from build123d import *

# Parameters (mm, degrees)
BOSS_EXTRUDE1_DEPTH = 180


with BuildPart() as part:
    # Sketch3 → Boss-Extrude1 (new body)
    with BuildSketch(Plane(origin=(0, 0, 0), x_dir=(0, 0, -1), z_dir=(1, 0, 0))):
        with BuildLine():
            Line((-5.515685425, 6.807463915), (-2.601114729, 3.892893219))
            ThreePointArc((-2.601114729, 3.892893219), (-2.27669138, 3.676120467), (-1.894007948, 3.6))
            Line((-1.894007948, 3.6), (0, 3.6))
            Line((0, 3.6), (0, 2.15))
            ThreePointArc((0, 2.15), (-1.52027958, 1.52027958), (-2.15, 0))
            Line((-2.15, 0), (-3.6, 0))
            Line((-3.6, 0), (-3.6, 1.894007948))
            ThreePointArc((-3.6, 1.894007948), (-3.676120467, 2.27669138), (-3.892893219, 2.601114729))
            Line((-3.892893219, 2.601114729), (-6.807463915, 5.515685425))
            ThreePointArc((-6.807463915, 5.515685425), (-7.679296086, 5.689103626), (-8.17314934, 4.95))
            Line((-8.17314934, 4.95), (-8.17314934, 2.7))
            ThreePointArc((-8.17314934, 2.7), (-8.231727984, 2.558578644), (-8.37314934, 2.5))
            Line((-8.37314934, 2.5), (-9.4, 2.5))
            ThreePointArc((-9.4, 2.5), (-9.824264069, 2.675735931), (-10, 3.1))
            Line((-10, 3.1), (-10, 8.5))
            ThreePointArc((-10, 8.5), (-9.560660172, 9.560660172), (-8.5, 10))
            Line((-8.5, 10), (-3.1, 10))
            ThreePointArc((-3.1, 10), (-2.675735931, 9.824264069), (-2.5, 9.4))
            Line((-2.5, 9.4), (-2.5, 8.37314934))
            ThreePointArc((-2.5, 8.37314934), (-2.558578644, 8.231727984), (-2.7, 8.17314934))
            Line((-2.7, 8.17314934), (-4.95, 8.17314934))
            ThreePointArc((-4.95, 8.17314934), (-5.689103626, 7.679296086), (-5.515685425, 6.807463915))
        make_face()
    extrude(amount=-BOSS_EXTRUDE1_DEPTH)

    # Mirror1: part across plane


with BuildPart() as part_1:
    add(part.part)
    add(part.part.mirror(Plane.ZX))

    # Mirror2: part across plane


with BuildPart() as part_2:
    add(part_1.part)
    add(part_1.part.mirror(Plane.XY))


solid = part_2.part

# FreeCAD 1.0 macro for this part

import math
import FreeCAD as App
import Part
import Sketcher

V = App.Vector
Q = App.Units.Quantity

doc = App.newDocument("Part")
body = doc.addObject("PartDesign::Body", "Body")

sketch1 = body.newObject("Sketcher::SketchObject", "Sketch")
sketch1.AttachmentSupport = (doc.getObject("YZ_Plane"), [""])
sketch1.MapMode = "FlatFace"
sketch1.addGeometry([
    Part.LineSegment(V(3.89, 2.6, 0), V(6.81, 5.52, 0)),
    Part.ArcOfCircle(Part.Circle(V(7.37, 4.95, 0), V(0, 0, 1), 0.8), math.radians(0), math.radians(135)),
    Part.LineSegment(V(8.17, 4.95, 0), V(8.17, 2.7, 0)),
    Part.ArcOfCircle(Part.Circle(V(8.37, 2.7, 0), V(0, 0, 1), 0.2), math.radians(-180), math.radians(-90)),
    Part.LineSegment(V(8.37, 2.5, 0), V(9.4, 2.5, 0)),
    Part.ArcOfCircle(Part.Circle(V(9.4, 3.1, 0), V(0, 0, 1), 0.6), math.radians(-90), math.radians(0)),
    Part.LineSegment(V(10, 3.1, 0), V(10, 8.5, 0)),
    Part.ArcOfCircle(Part.Circle(V(8.5, 8.5, 0), V(0, 0, 1), 1.5), math.radians(0), math.radians(90)),
    Part.LineSegment(V(8.5, 10, 0), V(3.1, 10, 0)),
    Part.ArcOfCircle(Part.Circle(V(3.1, 9.4, 0), V(0, 0, 1), 0.6), math.radians(90), math.radians(180)),
    Part.LineSegment(V(2.5, 9.4, 0), V(2.5, 8.37, 0)),
    Part.ArcOfCircle(Part.Circle(V(2.7, 8.37, 0), V(0, 0, 1), 0.2), math.radians(-180), math.radians(-90)),
    Part.LineSegment(V(2.7, 8.17, 0), V(4.95, 8.17, 0)),
    Part.ArcOfCircle(Part.Circle(V(4.95, 7.37, 0), V(0, 0, 1), 0.8), math.radians(-45), math.radians(90)),
    Part.LineSegment(V(5.52, 6.81, 0), V(2.6, 3.89, 0)),
    Part.ArcOfCircle(Part.Circle(V(1.89, 4.6, 0), V(0, 0, 1), 1), math.radians(-90), math.radians(-45)),
    Part.LineSegment(V(1.89, 3.6, 0), V(0, 3.6, 0)),
    Part.LineSegment(V(0, 3.6, 0), V(0, 2.15, 0)),
    Part.ArcOfCircle(Part.Circle(V(0, 0, 0), V(0, 0, 1), 2.15), math.radians(0), math.radians(90)),
    Part.LineSegment(V(2.15, 0, 0), V(3.6, 0, 0)),
    Part.LineSegment(V(3.6, 0, 0), V(3.6, 1.89, 0)),
    Part.ArcOfCircle(Part.Circle(V(4.6, 1.89, 0), V(0, 0, 1), 1), math.radians(135), math.radians(180)),
], False)
sketch1.addConstraint([
    Sketcher.Constraint("Tangent", 0, 2, 1, 2),
    Sketcher.Constraint("Tangent", 1, 1, 2, 1),
    Sketcher.Constraint("Tangent", 2, 2, 3, 1),
    Sketcher.Constraint("Tangent", 3, 2, 4, 1),
    Sketcher.Constraint("Tangent", 4, 2, 5, 1),
    Sketcher.Constraint("Tangent", 5, 2, 6, 1),
    Sketcher.Constraint("Tangent", 6, 2, 7, 1),
    Sketcher.Constraint("Tangent", 7, 2, 8, 1),
    Sketcher.Constraint("Tangent", 8, 2, 9, 1),
    Sketcher.Constraint("Tangent", 9, 2, 10, 1),
    Sketcher.Constraint("Tangent", 10, 2, 11, 1),
    Sketcher.Constraint("Tangent", 11, 2, 12, 1),
    Sketcher.Constraint("Tangent", 12, 2, 13, 2),
    Sketcher.Constraint("Tangent", 13, 1, 14, 1),
    Sketcher.Constraint("Tangent", 14, 2, 15, 2),
    Sketcher.Constraint("Tangent", 15, 1, 16, 1),
    Sketcher.Constraint("Coincident", 16, 2, 17, 1),
    Sketcher.Constraint("Coincident", 17, 2, 18, 2),
    Sketcher.Constraint("Coincident", 18, 1, 19, 1),
    Sketcher.Constraint("Coincident", 19, 2, 20, 1),
    Sketcher.Constraint("Tangent", 20, 2, 21, 2),
    Sketcher.Constraint("Tangent", 21, 1, 0, 1),
    Sketcher.Constraint("Vertical", 2),
    Sketcher.Constraint("Horizontal", 4),
    Sketcher.Constraint("Vertical", 6),
    Sketcher.Constraint("Horizontal", 8),
    Sketcher.Constraint("Vertical", 10),
    Sketcher.Constraint("Horizontal", 12),
    Sketcher.Constraint("Horizontal", 16),
    Sketcher.Constraint("Vertical", 17),
    Sketcher.Constraint("Horizontal", 19),
    Sketcher.Constraint("Vertical", 20),
    Sketcher.Constraint("Coincident", 18, 3, -1, 1),
    Sketcher.Constraint("Equal", 5, 9),
    Sketcher.Constraint("Equal", 3, 11),
    Sketcher.Constraint("Equal", 1, 13),
    Sketcher.Constraint("Equal", 15, 21),
    Sketcher.Constraint("PointOnObject", 16, 2, -2),
    Sketcher.Constraint("PointOnObject", 18, 1, -1),
    Sketcher.Constraint("Parallel", 0, 14),
    Sketcher.Constraint("Equal", 12, 2),
    Sketcher.Constraint("Equal", 8, 6),
    Sketcher.Constraint("Equal", 4, 10),
    Sketcher.Constraint("Equal", 19, 17),
    Sketcher.Constraint("Equal", 16, 20),
    Sketcher.Constraint("Equal", 0, 14),
    Sketcher.Constraint("Radius", 15, Q("1 mm")),
    Sketcher.Constraint("Radius", 1, Q("0.8 mm")),
    Sketcher.Constraint("Radius", 3, Q("0.2 mm")),
    Sketcher.Constraint("Radius", 5, Q("0.6 mm")),
    Sketcher.Constraint("Radius", 7, Q("1.5 mm")),
    Sketcher.Constraint("Radius", 18, Q("2.15 mm")),
    Sketcher.Constraint("DistanceX", 8, 2, 8, 1, Q("5.4 mm")),
    Sketcher.Constraint("DistanceX", -1, 1, 5, 2, Q("10 mm")),
    Sketcher.Constraint("DistanceX", 12, 1, 12, 2, Q("2.25 mm")),
    Sketcher.Constraint("DistanceX", 19, 1, 19, 2, Q("1.45 mm")),
    Sketcher.Constraint("DistanceX", 4, 1, 4, 2, Q("1.026851 mm")),
])
pad1 = body.newObject("PartDesign::Pad", "Pad")
pad1.Profile = sketch1
pad1.Length = 180
pad1.Reversed = True
body2 = doc.addObject("PartDesign::Body", "Body001")
doc.recompute()

body2.BaseFeature = body
doc.recompute()

mirroring = doc.addObject("Part::Mirroring", "Mirroring")
mirroring.Source = body
mirroring.Base = V(0, 0, 0)
mirroring.Normal = V(0, 1, 0)
body3 = doc.addObject("PartDesign::Body", "Body002")
body3.BaseFeature = mirroring
boolean = body2.newObject("PartDesign::Boolean", "Boolean")
boolean.Type = "Fuse"
boolean.addObjects([body3])
doc.recompute()
body4 = doc.addObject("PartDesign::Body", "Body003")
doc.recompute()

body4.BaseFeature = body2
doc.recompute()

mirroring2 = doc.addObject("Part::Mirroring", "Mirroring001")
mirroring2.Source = body2
mirroring2.Base = V(0, 0, 0)
mirroring2.Normal = V(0, 0, 1)
body5 = doc.addObject("PartDesign::Body", "Body004")
body5.BaseFeature = mirroring2
boolean2 = body4.newObject("PartDesign::Boolean", "Boolean001")
boolean2.Type = "Fuse"
boolean2.addObjects([body5])
doc.recompute()
mirroring.Visibility = False
mirroring2.Visibility = False

doc.recompute()
